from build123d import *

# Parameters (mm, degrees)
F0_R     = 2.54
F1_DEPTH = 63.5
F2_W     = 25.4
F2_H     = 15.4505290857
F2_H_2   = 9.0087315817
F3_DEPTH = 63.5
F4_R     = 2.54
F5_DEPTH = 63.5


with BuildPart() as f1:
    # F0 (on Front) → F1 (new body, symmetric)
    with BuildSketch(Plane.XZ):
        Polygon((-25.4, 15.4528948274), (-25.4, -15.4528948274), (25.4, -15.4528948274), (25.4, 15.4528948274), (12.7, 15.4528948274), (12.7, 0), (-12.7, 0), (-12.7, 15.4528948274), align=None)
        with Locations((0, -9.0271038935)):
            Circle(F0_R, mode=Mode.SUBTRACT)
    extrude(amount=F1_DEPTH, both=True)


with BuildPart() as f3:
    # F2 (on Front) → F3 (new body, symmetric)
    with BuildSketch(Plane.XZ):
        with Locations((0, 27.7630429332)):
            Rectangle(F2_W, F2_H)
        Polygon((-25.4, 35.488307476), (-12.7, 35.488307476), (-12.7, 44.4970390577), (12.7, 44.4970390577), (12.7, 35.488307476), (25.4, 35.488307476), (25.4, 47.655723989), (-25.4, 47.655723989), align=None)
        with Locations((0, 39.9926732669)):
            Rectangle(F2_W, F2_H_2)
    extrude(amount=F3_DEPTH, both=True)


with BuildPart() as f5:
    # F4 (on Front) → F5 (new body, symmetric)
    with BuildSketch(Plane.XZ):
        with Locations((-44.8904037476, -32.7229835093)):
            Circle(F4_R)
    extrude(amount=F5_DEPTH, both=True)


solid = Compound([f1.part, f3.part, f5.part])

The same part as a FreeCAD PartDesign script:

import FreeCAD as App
import Part
import Sketcher

V = App.Vector
Q = App.Units.Quantity

doc = App.newDocument("Part")
params = doc.addObject("Spreadsheet::Sheet", "Params")
for row, (alias, value) in enumerate([
    ("sketch1_diameter", "0.2 in"),
    ("sketch1_width", "2 in"),
    ("sketch1_width2", "1 in"),
    ("pad1_length", "5 in"),
    ("sketch2_width", "1 in"),
    ("sketch2_width2", "2 in"),
    ("pad2_length", "5 in"),
    ("sketch3_diameter", "0.2 in"),
    ("pad3_length", "5 in"),
], start=1):
    params.set(f"A{row}", alias)
    params.set(f"B{row}", "=" + value)
    params.setAlias(f"B{row}", alias)

body = doc.addObject("PartDesign::Body", "Body")

sketch1 = body.newObject("Sketcher::SketchObject", "Sketch")
sketch1.AttachmentSupport = (doc.getObject("XZ_Plane"), [""])
sketch1.MapMode = "FlatFace"
sketch1.addGeometry([
    Part.LineSegment(V(-25.4, 15.5, 0), V(-25.4, -15.5, 0)),
    Part.LineSegment(V(-25.4, -15.5, 0), V(25.4, -15.5, 0)),
    Part.LineSegment(V(25.4, -15.5, 0), V(25.4, 15.5, 0)),
    Part.LineSegment(V(25.4, 15.5, 0), V(12.7, 15.5, 0)),
    Part.LineSegment(V(12.7, 15.5, 0), V(12.7, 0, 0)),
    Part.LineSegment(V(12.7, 0, 0), V(-12.7, 0, 0)),
    Part.LineSegment(V(-12.7, 0, 0), V(-12.7, 15.5, 0)),
    Part.LineSegment(V(-12.7, 15.5, 0), V(-25.4, 15.5, 0)),
    Part.Circle(V(0, -9, 0), V(0, 0, 1), 2.5),
], False)
sketch1.addConstraint([
    Sketcher.Constraint("Coincident", 0, 2, 1, 1),
    Sketcher.Constraint("Coincident", 1, 2, 2, 1),
    Sketcher.Constraint("Coincident", 2, 2, 3, 1),
    Sketcher.Constraint("Coincident", 3, 2, 4, 1),
    Sketcher.Constraint("Coincident", 4, 2, 5, 1),
    Sketcher.Constraint("Coincident", 5, 2, 6, 1),
    Sketcher.Constraint("Coincident", 6, 2, 7, 1),
    Sketcher.Constraint("Coincident", 7, 2, 0, 1),
    Sketcher.Constraint("Vertical", 0),
    Sketcher.Constraint("Horizontal", 1),
    Sketcher.Constraint("Vertical", 2),
    Sketcher.Constraint("Horizontal", 3),
    Sketcher.Constraint("Vertical", 4),
    Sketcher.Constraint("Horizontal", 5),
    Sketcher.Constraint("Vertical", 6),
    Sketcher.Constraint("Horizontal", 7),
    Sketcher.Constraint("Symmetric", 0, 2, 2, 2, -1, 1),
    Sketcher.Constraint("Symmetric", 4, 2, 5, 2, -1, 1),
    Sketcher.Constraint("PointOnObject", 8, 3, -2),
    Sketcher.Constraint("Horizontal", 3, 2, 6, 2),
    Sketcher.Constraint("Diameter", 8, Q("0.2 in")),
    Sketcher.Constraint("DistanceX", 1, 1, 1, 2, Q("2 in")),
    Sketcher.Constraint("DistanceX", 5, 2, 5, 1, Q("1 in")),
    Sketcher.Constraint("DistanceY", 0, 2, 0, 1, Q("30.90579 mm")),
    Sketcher.Constraint("DistanceY", 8, 3, 2, 2, Q("24.479999 mm")),
])
sketch1.setExpression("Constraints[20]", "Params.sketch1_diameter")
sketch1.setExpression("Constraints[21]", "Params.sketch1_width")
sketch1.setExpression("Constraints[22]", "Params.sketch1_width2")
pad1 = body.newObject("PartDesign::Pad", "Pad")
pad1.Profile = sketch1
pad1.setExpression("Length", "Params.pad1_length")
pad1.Midplane = True
body2 = doc.addObject("PartDesign::Body", "Body001")

sketch2 = body2.newObject("Sketcher::SketchObject", "Sketch001")
sketch2.AttachmentSupport = (doc.getObject("XZ_Plane001"), [""])
sketch2.MapMode = "FlatFace"
sketch2.addGeometry([
    Part.LineSegment(V(-13, 35, 0), V(-13, 20, 0)),
    Part.LineSegment(V(-13, 20, 0), V(13, 20, 0)),
    Part.LineSegment(V(13, 20, 0), V(13, 35, 0)),
    Part.LineSegment(V(13, 35, 0), V(25, 35, 0)),
    Part.LineSegment(V(25, 35, 0), V(25, 48, 0)),
    Part.LineSegment(V(25, 48, 0), V(-25, 48, 0)),
    Part.LineSegment(V(-25, 48, 0), V(-25, 35, 0)),
    Part.LineSegment(V(-25, 35, 0), V(-13, 35, 0)),
], False)
sketch2.addConstraint([
    Sketcher.Constraint("Coincident", 0, 2, 1, 1),
    Sketcher.Constraint("Coincident", 1, 2, 2, 1),
    Sketcher.Constraint("Coincident", 2, 2, 3, 1),
    Sketcher.Constraint("Coincident", 3, 2, 4, 1),
    Sketcher.Constraint("Coincident", 4, 2, 5, 1),
    Sketcher.Constraint("Coincident", 5, 2, 6, 1),
    Sketcher.Constraint("Coincident", 6, 2, 7, 1),
    Sketcher.Constraint("Coincident", 7, 2, 0, 1),
    Sketcher.Constraint("Vertical", 0),
    Sketcher.Constraint("Horizontal", 1),
    Sketcher.Constraint("Vertical", 2),
    Sketcher.Constraint("Horizontal", 3),
    Sketcher.Constraint("Vertical", 4),
    Sketcher.Constraint("Horizontal", 5),
    Sketcher.Constraint("Vertical", 6),
    Sketcher.Constraint("Horizontal", 7),
    Sketcher.Constraint("Symmetric", 3, 2, 6, 2, -2),
    Sketcher.Constraint("Equal", 3, 7),
    Sketcher.Constraint("DistanceX", 1, 1, 1, 2, Q("1 in")),
    Sketcher.Constraint("DistanceX", 5, 2, 5, 1, Q("2 in")),
    Sketcher.Constraint("DistanceY", 0, 2, 0, 1, Q("15.450529 mm")),
    Sketcher.Constraint("DistanceY", 4, 1, 4, 2, Q("12.167417 mm")),
    Sketcher.Constraint("DistanceY", -1, 1, 0, 2, Q("20.037778 mm")),
])
sketch2.setExpression("Constraints[18]", "Params.sketch2_width")
sketch2.setExpression("Constraints[19]", "Params.sketch2_width2")
pad2 = body2.newObject("PartDesign::Pad", "Pad001")
pad2.Profile = sketch2
pad2.setExpression("Length", "Params.pad2_length")
pad2.Midplane = True
body3 = doc.addObject("PartDesign::Body", "Body002")

sketch3 = body3.newObject("Sketcher::SketchObject", "Sketch002")
sketch3.AttachmentSupport = (doc.getObject("XZ_Plane002"), [""])
sketch3.MapMode = "FlatFace"
sketch3.addGeometry(Part.Circle(V(-44.9, -32.7, 0), V(0, 0, 1), 2.5), False)
sketch3.addConstraint([
    Sketcher.Constraint("Diameter", 0, Q("0.2 in")),
    Sketcher.Constraint("DistanceX", 0, 3, -1, 1, Q("44.890404 mm")),
    Sketcher.Constraint("DistanceY", 0, 3, -1, 1, Q("32.722984 mm")),
])
sketch3.setExpression("Constraints[0]", "Params.sketch3_diameter")
pad3 = body3.newObject("PartDesign::Pad", "Pad002")
pad3.Profile = sketch3
pad3.setExpression("Length", "Params.pad3_length")
pad3.Midplane = True

doc.recompute()
